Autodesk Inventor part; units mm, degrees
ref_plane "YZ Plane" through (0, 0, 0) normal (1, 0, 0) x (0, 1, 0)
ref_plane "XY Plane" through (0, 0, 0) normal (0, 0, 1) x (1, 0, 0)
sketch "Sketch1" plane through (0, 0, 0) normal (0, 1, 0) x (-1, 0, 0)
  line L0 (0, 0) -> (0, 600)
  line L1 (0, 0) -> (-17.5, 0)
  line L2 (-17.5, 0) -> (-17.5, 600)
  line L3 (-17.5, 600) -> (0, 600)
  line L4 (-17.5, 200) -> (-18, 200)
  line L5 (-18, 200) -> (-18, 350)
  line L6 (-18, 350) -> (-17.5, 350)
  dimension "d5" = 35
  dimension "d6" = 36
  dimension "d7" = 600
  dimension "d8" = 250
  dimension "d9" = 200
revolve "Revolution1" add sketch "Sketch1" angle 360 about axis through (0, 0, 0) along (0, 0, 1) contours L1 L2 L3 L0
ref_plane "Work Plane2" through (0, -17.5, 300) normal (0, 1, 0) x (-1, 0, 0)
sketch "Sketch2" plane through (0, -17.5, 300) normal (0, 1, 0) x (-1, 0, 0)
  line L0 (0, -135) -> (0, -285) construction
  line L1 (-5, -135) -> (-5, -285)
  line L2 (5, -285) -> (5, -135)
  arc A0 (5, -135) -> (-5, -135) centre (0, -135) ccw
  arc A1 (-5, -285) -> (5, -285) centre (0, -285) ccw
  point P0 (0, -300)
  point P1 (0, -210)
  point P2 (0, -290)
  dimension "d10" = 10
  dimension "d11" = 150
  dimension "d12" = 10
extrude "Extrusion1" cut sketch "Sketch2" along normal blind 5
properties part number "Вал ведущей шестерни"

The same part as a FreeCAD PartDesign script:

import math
import FreeCAD as App
import Part
import Sketcher

V = App.Vector


def add_polygon(sketch, points):
    """Adds a closed chain of lines whose ends are joined by coincident constraints."""
    first, n = sketch.GeometryCount, len(points)
    for a, b in zip(points, points[1:] + points[:1]):
        sketch.addGeometry(Part.LineSegment(App.Vector(*a, 0), App.Vector(*b, 0)), False)
    for i in range(n):
        sketch.addConstraint(Sketcher.Constraint("Coincident", first + i, 2, first + (i + 1) % n, 1))

doc = App.newDocument("Part")
body = doc.addObject("PartDesign::Body", "Body")

# Sketch on XZ plane
sketch1 = doc.addObject("Sketcher::SketchObject", "Sketch")
body.addObject(sketch1)
sketch1.AttachmentSupport = (doc.XZ_Plane, [""])
sketch1.MapMode = "FlatFace"
add_polygon(sketch1, [(17.5, 0), (0, 0), (0, 600), (17.5, 600)])  # lines 0-3
sketch1.addConstraint(Sketcher.Constraint("Horizontal", 0))
sketch1.addConstraint(Sketcher.Constraint("Vertical", 1))
sketch1.addConstraint(Sketcher.Constraint("Horizontal", 2))
sketch1.addConstraint(Sketcher.Constraint("Vertical", 3))
sketch1.addConstraint(Sketcher.Constraint("Coincident", 0, 2, -1, 1))
sketch1.addConstraint(Sketcher.Constraint("DistanceY", 1, 1, 1, 2, 600.0))
sketch1.addConstraint(Sketcher.Constraint("DistanceX", 0, 2, 0, 1, 17.5))
revolution = doc.addObject("PartDesign::Revolution", "Revolution")
body.addObject(revolution)
revolution.Profile = sketch1
revolution.ReferenceAxis = (sketch1, ["V_Axis"])
revolution.Angle = 360

# Sketch on XZ plane
sketch2 = doc.addObject("Sketcher::SketchObject", "Sketch001")
body.addObject(sketch2)
sketch2.AttachmentSupport = (doc.XZ_Plane, [""])
sketch2.MapMode = "FlatFace"
sketch2.AttachmentOffset = App.Placement(V(0, 0, 17.5), App.Rotation())
sketch2.addGeometry(Part.ArcOfCircle(Part.Circle(V(0, 165, 0), V(0, 0, 1), 5), math.radians(0), math.radians(180)), False)
sketch2.addGeometry(Part.LineSegment(V(5, 165, 0), V(5, 15, 0)), False)
sketch2.addGeometry(Part.ArcOfCircle(Part.Circle(V(0, 15, 0), V(0, 0, 1), 5), math.radians(180), math.radians(360)), False)
sketch2.addGeometry(Part.LineSegment(V(-5, 15, 0), V(-5, 165, 0)), False)
sketch2.addConstraint(Sketcher.Constraint("Tangent", 0, 1, 1, 1))
sketch2.addConstraint(Sketcher.Constraint("Tangent", 1, 2, 2, 2))
sketch2.addConstraint(Sketcher.Constraint("Tangent", 2, 1, 3, 1))
sketch2.addConstraint(Sketcher.Constraint("Tangent", 3, 2, 0, 2))
sketch2.addConstraint(Sketcher.Constraint("Vertical", 1))
sketch2.addConstraint(Sketcher.Constraint("Vertical", 3))
sketch2.addConstraint(Sketcher.Constraint("PointOnObject", 0, 3, -2))
sketch2.addConstraint(Sketcher.Constraint("Radius", 0, 5.0))
sketch2.addConstraint(Sketcher.Constraint("DistanceY", 1, 2, 1, 1, 150.0))
sketch2.addConstraint(Sketcher.Constraint("DistanceY", -1, 1, 0, 3, 165.0))
pocket1 = doc.addObject("PartDesign::Pocket", "Pocket")
body.addObject(pocket1)
pocket1.Profile = sketch2
pocket1.Length = 5

doc.recompute()
